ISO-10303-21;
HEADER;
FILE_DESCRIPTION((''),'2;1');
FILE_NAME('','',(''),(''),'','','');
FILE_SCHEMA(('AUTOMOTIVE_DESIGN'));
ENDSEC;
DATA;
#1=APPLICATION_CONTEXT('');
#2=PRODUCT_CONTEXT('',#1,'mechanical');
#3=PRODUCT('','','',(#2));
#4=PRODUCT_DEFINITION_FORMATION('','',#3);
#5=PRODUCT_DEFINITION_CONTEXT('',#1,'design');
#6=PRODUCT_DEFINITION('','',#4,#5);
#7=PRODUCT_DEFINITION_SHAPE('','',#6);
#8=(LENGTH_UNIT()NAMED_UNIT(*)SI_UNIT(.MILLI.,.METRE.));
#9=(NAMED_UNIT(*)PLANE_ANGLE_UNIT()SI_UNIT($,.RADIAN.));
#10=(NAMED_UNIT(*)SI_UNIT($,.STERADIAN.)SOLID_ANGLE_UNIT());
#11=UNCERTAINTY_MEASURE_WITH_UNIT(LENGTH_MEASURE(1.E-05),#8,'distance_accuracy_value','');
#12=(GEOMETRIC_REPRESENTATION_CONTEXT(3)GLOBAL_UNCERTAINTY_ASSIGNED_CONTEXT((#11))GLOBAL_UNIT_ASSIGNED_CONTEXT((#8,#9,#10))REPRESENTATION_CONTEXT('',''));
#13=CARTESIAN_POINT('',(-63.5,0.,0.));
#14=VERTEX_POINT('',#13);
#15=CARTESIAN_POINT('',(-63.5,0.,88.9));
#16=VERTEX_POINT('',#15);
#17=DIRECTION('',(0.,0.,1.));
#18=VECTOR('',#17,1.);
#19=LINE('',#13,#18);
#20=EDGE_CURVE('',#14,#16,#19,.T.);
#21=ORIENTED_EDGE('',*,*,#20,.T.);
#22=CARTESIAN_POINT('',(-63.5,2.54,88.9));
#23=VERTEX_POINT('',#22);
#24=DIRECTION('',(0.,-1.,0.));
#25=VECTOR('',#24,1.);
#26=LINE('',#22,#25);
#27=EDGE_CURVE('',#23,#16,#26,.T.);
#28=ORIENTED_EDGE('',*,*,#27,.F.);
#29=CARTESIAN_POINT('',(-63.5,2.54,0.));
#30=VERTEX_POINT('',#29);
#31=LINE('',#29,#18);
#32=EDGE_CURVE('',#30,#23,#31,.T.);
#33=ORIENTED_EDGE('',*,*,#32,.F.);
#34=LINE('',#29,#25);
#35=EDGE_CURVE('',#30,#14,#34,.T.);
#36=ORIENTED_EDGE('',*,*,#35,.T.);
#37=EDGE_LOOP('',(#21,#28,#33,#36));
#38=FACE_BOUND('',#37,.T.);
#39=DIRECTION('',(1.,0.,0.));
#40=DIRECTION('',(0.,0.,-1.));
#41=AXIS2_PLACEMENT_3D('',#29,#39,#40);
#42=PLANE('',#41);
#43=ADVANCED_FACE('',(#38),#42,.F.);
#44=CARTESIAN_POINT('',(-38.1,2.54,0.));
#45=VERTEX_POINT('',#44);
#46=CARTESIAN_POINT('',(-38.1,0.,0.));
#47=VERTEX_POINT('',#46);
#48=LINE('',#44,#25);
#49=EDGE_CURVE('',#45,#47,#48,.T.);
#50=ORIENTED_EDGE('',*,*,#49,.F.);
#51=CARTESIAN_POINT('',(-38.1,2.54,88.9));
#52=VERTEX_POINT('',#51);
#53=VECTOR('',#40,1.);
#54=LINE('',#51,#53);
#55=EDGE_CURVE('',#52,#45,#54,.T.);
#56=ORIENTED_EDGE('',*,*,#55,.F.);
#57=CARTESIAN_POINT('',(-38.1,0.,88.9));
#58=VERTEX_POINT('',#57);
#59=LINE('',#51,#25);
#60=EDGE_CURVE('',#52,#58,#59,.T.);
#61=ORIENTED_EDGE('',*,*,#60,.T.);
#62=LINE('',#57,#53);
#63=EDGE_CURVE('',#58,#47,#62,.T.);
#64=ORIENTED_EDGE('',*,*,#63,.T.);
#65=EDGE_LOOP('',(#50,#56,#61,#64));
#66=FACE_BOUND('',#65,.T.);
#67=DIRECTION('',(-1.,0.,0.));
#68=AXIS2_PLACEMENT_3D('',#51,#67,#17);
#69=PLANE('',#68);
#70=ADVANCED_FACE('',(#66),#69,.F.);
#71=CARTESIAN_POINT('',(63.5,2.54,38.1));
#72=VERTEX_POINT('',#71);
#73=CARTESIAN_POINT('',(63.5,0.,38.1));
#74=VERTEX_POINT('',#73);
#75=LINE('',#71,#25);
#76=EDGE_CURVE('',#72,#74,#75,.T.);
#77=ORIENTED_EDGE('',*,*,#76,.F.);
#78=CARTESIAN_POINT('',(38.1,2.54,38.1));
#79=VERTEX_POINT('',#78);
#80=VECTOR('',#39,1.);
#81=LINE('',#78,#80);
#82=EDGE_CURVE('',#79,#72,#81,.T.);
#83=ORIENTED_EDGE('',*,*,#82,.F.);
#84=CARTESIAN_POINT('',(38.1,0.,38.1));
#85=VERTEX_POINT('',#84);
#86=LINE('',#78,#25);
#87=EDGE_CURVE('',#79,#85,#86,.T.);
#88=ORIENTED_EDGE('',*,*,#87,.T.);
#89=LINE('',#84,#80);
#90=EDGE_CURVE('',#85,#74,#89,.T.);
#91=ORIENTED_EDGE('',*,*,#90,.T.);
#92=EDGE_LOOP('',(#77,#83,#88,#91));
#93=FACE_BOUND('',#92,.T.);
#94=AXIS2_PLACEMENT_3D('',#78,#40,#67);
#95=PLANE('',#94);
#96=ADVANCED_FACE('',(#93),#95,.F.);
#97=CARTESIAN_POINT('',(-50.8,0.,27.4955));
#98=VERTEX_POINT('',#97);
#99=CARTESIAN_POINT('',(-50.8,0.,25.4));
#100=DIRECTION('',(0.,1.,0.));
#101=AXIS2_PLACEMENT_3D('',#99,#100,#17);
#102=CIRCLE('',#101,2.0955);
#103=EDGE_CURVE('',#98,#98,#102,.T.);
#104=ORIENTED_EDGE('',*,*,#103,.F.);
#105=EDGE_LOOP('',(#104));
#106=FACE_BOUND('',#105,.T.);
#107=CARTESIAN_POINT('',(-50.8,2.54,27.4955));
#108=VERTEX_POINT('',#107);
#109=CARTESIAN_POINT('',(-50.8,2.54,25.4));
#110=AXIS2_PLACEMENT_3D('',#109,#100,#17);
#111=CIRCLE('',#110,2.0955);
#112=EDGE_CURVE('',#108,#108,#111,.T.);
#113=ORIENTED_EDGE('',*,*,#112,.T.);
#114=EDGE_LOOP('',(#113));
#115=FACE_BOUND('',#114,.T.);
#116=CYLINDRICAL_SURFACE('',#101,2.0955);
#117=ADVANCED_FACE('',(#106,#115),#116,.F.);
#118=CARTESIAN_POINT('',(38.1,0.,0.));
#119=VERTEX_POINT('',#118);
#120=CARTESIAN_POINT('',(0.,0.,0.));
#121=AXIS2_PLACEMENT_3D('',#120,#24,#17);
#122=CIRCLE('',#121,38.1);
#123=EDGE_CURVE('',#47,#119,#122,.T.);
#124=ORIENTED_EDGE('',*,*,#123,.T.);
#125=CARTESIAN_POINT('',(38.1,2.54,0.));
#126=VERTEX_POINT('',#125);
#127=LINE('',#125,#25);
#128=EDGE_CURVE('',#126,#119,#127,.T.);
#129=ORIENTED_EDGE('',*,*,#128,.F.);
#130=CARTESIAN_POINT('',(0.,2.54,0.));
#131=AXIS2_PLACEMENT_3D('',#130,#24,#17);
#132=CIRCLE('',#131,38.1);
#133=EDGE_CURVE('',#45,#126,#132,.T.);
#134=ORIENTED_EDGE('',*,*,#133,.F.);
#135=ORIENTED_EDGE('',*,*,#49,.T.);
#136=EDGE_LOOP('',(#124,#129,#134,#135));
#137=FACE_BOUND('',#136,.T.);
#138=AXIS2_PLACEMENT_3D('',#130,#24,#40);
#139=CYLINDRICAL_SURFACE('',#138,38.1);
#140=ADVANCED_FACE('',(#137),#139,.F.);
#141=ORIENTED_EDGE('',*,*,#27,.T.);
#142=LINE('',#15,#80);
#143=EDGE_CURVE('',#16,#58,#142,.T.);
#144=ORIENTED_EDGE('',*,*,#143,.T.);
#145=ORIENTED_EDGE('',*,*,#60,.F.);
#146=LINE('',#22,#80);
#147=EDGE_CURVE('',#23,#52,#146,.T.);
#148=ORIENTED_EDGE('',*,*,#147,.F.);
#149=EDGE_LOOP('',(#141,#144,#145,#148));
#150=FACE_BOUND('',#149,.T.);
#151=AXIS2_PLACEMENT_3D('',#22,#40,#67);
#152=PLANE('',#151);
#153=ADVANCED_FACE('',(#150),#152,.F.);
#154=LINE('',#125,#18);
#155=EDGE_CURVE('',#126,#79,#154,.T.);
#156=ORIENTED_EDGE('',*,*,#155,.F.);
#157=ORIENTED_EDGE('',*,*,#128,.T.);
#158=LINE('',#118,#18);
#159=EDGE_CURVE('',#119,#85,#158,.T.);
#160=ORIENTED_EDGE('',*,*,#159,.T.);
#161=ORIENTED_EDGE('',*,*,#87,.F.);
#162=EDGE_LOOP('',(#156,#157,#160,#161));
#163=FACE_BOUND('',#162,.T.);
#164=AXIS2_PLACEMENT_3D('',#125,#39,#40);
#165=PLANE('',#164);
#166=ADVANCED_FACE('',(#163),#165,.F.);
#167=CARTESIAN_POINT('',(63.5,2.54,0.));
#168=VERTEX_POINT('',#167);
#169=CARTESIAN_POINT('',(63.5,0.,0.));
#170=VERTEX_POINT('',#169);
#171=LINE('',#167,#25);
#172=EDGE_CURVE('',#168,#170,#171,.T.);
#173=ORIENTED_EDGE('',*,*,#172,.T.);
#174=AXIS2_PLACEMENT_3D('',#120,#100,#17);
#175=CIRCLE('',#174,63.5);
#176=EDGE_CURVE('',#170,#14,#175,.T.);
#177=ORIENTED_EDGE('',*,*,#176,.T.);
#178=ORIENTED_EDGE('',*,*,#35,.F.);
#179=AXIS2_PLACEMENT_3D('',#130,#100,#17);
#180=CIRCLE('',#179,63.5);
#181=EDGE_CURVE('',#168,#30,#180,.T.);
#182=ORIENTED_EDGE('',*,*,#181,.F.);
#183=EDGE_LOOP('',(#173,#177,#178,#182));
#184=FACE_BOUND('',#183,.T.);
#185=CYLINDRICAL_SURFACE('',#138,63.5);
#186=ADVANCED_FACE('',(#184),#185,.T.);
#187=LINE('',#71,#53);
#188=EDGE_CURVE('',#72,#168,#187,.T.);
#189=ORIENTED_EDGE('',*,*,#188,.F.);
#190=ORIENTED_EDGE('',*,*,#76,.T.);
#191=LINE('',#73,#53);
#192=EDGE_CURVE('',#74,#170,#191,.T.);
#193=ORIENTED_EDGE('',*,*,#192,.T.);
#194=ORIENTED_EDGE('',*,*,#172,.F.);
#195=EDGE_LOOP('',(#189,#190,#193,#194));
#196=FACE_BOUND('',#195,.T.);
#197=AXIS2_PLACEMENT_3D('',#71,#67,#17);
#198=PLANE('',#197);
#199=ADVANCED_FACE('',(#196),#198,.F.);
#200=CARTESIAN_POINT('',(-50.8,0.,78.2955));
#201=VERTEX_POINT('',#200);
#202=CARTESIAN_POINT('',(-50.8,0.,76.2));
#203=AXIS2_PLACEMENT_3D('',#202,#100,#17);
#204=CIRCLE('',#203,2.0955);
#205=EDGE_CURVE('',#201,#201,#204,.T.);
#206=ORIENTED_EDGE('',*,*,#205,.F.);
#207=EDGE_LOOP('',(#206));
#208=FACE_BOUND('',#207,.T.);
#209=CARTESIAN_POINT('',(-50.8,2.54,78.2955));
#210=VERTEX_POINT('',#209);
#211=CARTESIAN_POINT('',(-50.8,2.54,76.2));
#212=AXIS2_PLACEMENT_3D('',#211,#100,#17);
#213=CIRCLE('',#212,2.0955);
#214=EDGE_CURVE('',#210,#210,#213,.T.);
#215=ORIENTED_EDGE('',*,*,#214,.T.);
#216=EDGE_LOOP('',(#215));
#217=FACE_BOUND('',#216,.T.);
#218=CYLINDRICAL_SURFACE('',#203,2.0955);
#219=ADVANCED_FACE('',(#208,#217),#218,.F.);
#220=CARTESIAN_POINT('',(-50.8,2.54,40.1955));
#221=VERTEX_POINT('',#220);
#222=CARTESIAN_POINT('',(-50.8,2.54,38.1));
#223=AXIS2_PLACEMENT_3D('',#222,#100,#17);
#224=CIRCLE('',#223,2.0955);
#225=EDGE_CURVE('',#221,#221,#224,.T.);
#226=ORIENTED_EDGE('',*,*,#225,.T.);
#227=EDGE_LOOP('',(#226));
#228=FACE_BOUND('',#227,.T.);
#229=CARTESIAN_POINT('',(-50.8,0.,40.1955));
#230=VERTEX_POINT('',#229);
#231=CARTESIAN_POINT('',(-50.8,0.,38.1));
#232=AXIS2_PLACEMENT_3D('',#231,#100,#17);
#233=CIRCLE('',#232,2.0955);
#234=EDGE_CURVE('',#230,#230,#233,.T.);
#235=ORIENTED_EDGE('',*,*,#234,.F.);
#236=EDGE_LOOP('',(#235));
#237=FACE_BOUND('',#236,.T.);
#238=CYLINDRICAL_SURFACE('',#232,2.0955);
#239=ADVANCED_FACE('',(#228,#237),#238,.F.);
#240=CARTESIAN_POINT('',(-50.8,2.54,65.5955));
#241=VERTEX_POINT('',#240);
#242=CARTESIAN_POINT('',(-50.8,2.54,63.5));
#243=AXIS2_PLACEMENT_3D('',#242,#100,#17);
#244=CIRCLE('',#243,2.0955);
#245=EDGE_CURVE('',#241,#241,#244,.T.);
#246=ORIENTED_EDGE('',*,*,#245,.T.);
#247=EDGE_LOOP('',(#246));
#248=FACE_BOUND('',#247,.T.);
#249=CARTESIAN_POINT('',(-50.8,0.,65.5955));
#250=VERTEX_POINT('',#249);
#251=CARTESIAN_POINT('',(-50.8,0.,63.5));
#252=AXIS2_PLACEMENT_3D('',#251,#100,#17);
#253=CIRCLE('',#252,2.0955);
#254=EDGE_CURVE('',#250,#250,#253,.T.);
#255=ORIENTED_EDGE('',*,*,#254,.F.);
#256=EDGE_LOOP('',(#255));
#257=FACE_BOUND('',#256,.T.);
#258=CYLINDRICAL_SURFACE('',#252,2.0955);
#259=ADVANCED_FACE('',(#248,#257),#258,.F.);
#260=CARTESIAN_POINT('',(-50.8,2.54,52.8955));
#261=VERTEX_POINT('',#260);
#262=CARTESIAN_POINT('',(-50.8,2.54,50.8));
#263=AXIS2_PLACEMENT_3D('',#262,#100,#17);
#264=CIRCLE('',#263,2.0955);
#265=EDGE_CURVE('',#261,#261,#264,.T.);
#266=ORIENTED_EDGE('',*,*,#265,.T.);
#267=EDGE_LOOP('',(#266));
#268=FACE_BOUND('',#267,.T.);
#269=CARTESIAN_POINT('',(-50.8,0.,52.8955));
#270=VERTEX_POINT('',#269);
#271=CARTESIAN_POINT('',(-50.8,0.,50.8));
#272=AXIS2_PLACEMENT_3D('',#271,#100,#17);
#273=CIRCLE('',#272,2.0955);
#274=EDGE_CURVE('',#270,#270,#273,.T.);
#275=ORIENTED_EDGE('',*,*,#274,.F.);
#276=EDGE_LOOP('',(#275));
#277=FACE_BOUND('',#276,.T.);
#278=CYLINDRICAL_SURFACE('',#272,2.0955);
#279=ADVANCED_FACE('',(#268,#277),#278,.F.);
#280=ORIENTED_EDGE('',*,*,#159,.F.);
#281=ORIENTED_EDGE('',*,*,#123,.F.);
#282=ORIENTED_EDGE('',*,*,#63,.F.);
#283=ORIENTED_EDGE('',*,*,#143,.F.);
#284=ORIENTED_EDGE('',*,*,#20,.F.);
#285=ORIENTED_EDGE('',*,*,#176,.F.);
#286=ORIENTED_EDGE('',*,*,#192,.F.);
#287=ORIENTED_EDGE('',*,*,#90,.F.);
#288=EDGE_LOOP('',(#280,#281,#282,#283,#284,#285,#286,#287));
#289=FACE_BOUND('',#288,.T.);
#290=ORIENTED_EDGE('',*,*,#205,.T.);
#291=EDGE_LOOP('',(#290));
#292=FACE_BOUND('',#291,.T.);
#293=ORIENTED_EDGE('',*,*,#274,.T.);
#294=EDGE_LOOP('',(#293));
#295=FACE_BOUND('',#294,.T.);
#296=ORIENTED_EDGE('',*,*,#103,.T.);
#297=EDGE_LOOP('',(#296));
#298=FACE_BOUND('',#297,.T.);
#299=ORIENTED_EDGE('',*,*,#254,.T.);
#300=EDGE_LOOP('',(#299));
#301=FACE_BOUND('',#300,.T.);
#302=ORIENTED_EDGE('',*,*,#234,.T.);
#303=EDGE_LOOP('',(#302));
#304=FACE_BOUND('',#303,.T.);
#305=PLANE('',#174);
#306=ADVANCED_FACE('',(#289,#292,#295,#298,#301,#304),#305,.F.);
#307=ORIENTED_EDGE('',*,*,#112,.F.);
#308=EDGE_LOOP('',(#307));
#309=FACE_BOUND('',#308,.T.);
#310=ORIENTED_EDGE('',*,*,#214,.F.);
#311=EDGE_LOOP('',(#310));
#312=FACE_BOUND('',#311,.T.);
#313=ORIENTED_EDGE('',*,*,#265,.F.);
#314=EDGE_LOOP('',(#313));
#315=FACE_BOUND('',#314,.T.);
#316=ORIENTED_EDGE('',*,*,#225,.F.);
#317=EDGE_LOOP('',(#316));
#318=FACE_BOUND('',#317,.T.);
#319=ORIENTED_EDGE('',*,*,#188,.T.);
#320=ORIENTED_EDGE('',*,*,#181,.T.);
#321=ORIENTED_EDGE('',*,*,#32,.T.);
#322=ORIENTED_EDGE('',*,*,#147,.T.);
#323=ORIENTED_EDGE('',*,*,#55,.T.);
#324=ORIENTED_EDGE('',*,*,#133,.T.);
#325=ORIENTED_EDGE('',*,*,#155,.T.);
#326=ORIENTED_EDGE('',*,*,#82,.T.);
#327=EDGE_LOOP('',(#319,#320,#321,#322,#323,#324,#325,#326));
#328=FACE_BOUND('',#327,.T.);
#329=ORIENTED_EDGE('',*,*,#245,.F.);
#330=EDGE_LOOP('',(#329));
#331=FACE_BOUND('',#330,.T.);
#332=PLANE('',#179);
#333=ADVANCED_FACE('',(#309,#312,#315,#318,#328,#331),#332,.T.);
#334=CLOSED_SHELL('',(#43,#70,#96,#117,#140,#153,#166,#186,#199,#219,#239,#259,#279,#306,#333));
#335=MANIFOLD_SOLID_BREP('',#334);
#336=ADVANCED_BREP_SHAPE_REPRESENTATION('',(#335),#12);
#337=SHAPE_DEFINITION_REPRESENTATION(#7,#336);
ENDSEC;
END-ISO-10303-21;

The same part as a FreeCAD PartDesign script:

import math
import FreeCAD as App
import Part
import Sketcher
Q = App.Units.Quantity

doc = App.newDocument("Part")
params = doc.addObject("Spreadsheet::Sheet", "Params")
for row, (alias, value) in enumerate([
    ("sketch1_radius", "1.5 in"),
    ("sketch1_radius2", "2.5 in"),
    ("sketch1_height", "3.5 in"),
    ("sketch1_height2", "1.5 in"),
    ("pad1_length", "0.1 in"),
    ("sketch2_diameter", "0.165 in"),
], start=1):
    params.set(f"A{row}", alias)
    params.set(f"B{row}", "=" + value)
    params.setAlias(f"B{row}", alias)

body = doc.addObject("PartDesign::Body", "Body")

# Sketch on XZ plane
sketch1 = body.newObject("Sketcher::SketchObject", "Sketch")
sketch1.AttachmentSupport = (doc.getObject("XZ_Plane"), [""])
sketch1.MapMode = "FlatFace"
sketch1.addGeometry([
    Part.LineSegment(App.Vector(-38.1, 88.9, 0), App.Vector(-38.1, 0, 0)),  # 0
    Part.ArcOfCircle(Part.Circle(App.Vector(0, 0, 0), App.Vector(0, 0, 1), 38.1), math.radians(180), math.radians(360)),  # 1
    Part.LineSegment(App.Vector(38.1, 0, 0), App.Vector(38.1, 38.1, 0)),  # 2
    Part.LineSegment(App.Vector(38.1, 38.1, 0), App.Vector(63.5, 38.1, 0)),  # 3
    Part.LineSegment(App.Vector(63.5, 38.1, 0), App.Vector(63.5, 0, 0)),  # 4
    Part.ArcOfCircle(Part.Circle(App.Vector(0, 0, 0), App.Vector(0, 0, 1), 63.5), math.radians(180), math.radians(360)),  # 5
    Part.LineSegment(App.Vector(-63.5, 0, 0), App.Vector(-63.5, 88.9, 0)),  # 6
    Part.LineSegment(App.Vector(-63.5, 88.9, 0), App.Vector(-38.1, 88.9, 0)),  # 7
], False)
sketch1.addConstraint([
    Sketcher.Constraint("Tangent", 0, 2, 1, 1),
    Sketcher.Constraint("Tangent", 1, 2, 2, 1),
    Sketcher.Constraint("Coincident", 2, 2, 3, 1),
    Sketcher.Constraint("Coincident", 3, 2, 4, 1),
    Sketcher.Constraint("Tangent", 4, 2, 5, 2),
    Sketcher.Constraint("Tangent", 5, 1, 6, 1),
    Sketcher.Constraint("Coincident", 6, 2, 7, 1),
    Sketcher.Constraint("Coincident", 7, 2, 0, 1),
    Sketcher.Constraint("Vertical", 0),
    Sketcher.Constraint("Vertical", 2),
    Sketcher.Constraint("Horizontal", 3),
    Sketcher.Constraint("Vertical", 4),
    Sketcher.Constraint("Vertical", 6),
    Sketcher.Constraint("Horizontal", 7),
    Sketcher.Constraint("Coincident", 1, 3, -1, 1),
    Sketcher.Constraint("Coincident", 5, 3, -1, 1),
    Sketcher.Constraint("Radius", 1, Q("1.5 in")),
    Sketcher.Constraint("Radius", 5, Q("2.5 in")),
    Sketcher.Constraint("DistanceY", 0, 2, 0, 1, Q("3.5 in")),
    Sketcher.Constraint("DistanceY", 2, 1, 2, 2, Q("1.5 in")),
])
sketch1.setExpression("Constraints[16]", "Params.sketch1_radius")
sketch1.setExpression("Constraints[17]", "Params.sketch1_radius2")
sketch1.setExpression("Constraints[18]", "Params.sketch1_height")
sketch1.setExpression("Constraints[19]", "Params.sketch1_height2")
pad1 = body.newObject("PartDesign::Pad", "Pad")
pad1.Profile = sketch1
pad1.setExpression("Length", "Params.pad1_length")
pad1.Reversed = True

# Sketch on XZ plane
sketch2 = body.newObject("Sketcher::SketchObject", "Sketch001")
sketch2.AttachmentSupport = (doc.getObject("XZ_Plane"), [""])
sketch2.MapMode = "FlatFace"
sketch2.AttachmentOffset = App.Placement(App.Vector(0, 0, -0.1 * 25.4), App.Rotation())
sketch2.addGeometry([
    Part.Circle(App.Vector(-50.8, 76.2, 0), App.Vector(0, 0, 1), 2.0955),  # 0
    Part.Circle(App.Vector(-50.8, 63.5, 0), App.Vector(0, 0, 1), 2.0955),  # 1
    Part.Circle(App.Vector(-50.8, 50.8, 0), App.Vector(0, 0, 1), 2.0955),  # 2
    Part.Circle(App.Vector(-50.8, 38.1, 0), App.Vector(0, 0, 1), 2.0955),  # 3
    Part.Circle(App.Vector(-50.8, 25.4, 0), App.Vector(0, 0, 1), 2.0955),  # 4
], False)
sketch2.addConstraint([
    Sketcher.Constraint("Equal", 0, 1),
    Sketcher.Constraint("Equal", 1, 2),
    Sketcher.Constraint("Equal", 2, 3),
    Sketcher.Constraint("Equal", 3, 4),
    Sketcher.Constraint("Vertical", 0, 3, 1, 3),
    Sketcher.Constraint("Vertical", 1, 3, 2, 3),
    Sketcher.Constraint("Vertical", 2, 3, 3, 3),
    Sketcher.Constraint("Vertical", 3, 3, 4, 3),
    Sketcher.Constraint("Diameter", 0, Q("0.165 in")),
    Sketcher.Constraint("DistanceX", 0, 3, -1, 1, Q("2 in")),
    Sketcher.Constraint("DistanceY", -1, 1, 0, 3, Q("3 in")),
    Sketcher.Constraint("DistanceY", -1, 1, 2, 3, Q("2 in")),
    Sketcher.Constraint("DistanceY", -1, 1, 4, 3, Q("1 in")),
    Sketcher.Constraint("DistanceY", 3, 3, 1, 3, Q("1 in")),
    Sketcher.Constraint("DistanceY", -1, 1, 1, 3, Q("2.5 in")),
])
sketch2.setExpression("Constraints[8]", "Params.sketch2_diameter")
pocket1 = body.newObject("PartDesign::Pocket", "Pocket")
pocket1.Profile = sketch2
pocket1.Type = "ThroughAll"
pocket1.Reversed = True

doc.recompute()
